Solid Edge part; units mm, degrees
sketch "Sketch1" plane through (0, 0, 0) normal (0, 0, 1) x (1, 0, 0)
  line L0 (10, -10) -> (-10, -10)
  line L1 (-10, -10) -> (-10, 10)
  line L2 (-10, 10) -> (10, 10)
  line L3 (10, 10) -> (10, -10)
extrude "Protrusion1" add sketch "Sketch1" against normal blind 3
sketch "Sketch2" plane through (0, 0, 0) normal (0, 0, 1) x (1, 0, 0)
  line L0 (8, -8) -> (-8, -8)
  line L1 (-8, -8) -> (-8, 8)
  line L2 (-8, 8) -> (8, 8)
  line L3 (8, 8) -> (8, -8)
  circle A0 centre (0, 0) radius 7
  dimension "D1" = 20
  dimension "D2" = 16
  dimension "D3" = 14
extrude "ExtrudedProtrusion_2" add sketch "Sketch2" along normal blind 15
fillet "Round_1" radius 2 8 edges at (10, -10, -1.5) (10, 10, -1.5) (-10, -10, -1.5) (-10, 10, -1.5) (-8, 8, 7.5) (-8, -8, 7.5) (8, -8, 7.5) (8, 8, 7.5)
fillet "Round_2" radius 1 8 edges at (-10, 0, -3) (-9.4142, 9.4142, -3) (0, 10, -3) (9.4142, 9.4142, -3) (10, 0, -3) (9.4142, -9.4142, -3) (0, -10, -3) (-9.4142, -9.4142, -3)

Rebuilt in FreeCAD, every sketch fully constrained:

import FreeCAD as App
import Part
import Sketcher
Q = App.Units.Quantity


def edges_at(feature, points):
    """Names of the edges that pass closest to the given points."""
    edges = feature.Shape.Edges
    near = lambda p: min(range(len(edges)), key=lambda i: edges[i].distToShape(Part.Vertex(*p))[0])
    return sorted({f"Edge{near(p) + 1}" for p in points})


def add_polygon(sketch, points):
    """Adds a closed chain of lines whose ends are joined by coincident constraints."""
    first, n = sketch.GeometryCount, len(points)
    for a, b in zip(points, points[1:] + points[:1]):
        sketch.addGeometry(Part.LineSegment(App.Vector(*a, 0), App.Vector(*b, 0)), False)
    for i in range(n):
        sketch.addConstraint(Sketcher.Constraint("Coincident", first + i, 2, first + (i + 1) % n, 1))

doc = App.newDocument("Part")
body = doc.addObject("PartDesign::Body", "Body")

sketch1 = body.newObject("Sketcher::SketchObject", "Sketch")
sketch1.AttachmentSupport = (doc.getObject("XY_Plane"), [""])
sketch1.MapMode = "FlatFace"
add_polygon(sketch1, [(-10, -10), (10, -10), (10, 10), (-10, 10)])
sketch1.addConstraint([
    Sketcher.Constraint("Horizontal", 0),
    Sketcher.Constraint("Vertical", 1),
    Sketcher.Constraint("Horizontal", 2),
    Sketcher.Constraint("Vertical", 3),
    Sketcher.Constraint("Symmetric", 0, 2, 2, 2, -1, 1),
    Sketcher.Constraint("Equal", 2, 1),
    Sketcher.Constraint("DistanceX", 0, 1, 0, 2, Q("20 mm")),
])
pad1 = body.newObject("PartDesign::Pad", "Pad")
pad1.Profile = sketch1
pad1.Length = 3
pad1.Reversed = True

sketch2 = body.newObject("Sketcher::SketchObject", "Sketch001")
sketch2.AttachmentSupport = (doc.getObject("XY_Plane"), [""])
sketch2.MapMode = "FlatFace"
add_polygon(sketch2, [(-8, -8), (8, -8), (8, 8), (-8, 8)])
sketch2.addGeometry(Part.Circle(App.Vector(0, 0, 0), App.Vector(0, 0, 1), 7), False)
sketch2.addConstraint([
    Sketcher.Constraint("Horizontal", 0),
    Sketcher.Constraint("Vertical", 1),
    Sketcher.Constraint("Horizontal", 2),
    Sketcher.Constraint("Vertical", 3),
    Sketcher.Constraint("Coincident", 4, 3, -1, 1),
    Sketcher.Constraint("Symmetric", 0, 2, 2, 2, -1, 1),
    Sketcher.Constraint("Equal", 2, 1),
    Sketcher.Constraint("Diameter", 4, Q("14 mm")),
    Sketcher.Constraint("DistanceX", 0, 1, 0, 2, Q("16 mm")),
])
pad2 = body.newObject("PartDesign::Pad", "Pad001")
pad2.Profile = sketch2
pad2.Length = 15
doc.recompute()

fillet = body.newObject("PartDesign::Fillet", "Fillet")
fillet.Base = (pad2, edges_at(pad2, [
    (10, -10, -1.5),
    (10, 10, -1.5),
    (-10, -10, -1.5),
    (-10, 10, -1.5),
    (-8, 8, 7.5),
    (-8, -8, 7.5),
    (8, -8, 7.5),
    (8, 8, 7.5),
]))
fillet.Radius = 2
doc.recompute()

fillet2 = body.newObject("PartDesign::Fillet", "Fillet001")
fillet2.Base = (fillet, edges_at(fillet, [
    (-10, 0, -3),
    (-9.414, 9.414, -3),
    (0, 10, -3),
    (9.414, 9.414, -3),
    (10, 0, -3),
    (9.414, -9.414, -3),
    (0, -10, -3),
    (-9.414, -9.414, -3),
]))
fillet2.Radius = 1

doc.recompute()
